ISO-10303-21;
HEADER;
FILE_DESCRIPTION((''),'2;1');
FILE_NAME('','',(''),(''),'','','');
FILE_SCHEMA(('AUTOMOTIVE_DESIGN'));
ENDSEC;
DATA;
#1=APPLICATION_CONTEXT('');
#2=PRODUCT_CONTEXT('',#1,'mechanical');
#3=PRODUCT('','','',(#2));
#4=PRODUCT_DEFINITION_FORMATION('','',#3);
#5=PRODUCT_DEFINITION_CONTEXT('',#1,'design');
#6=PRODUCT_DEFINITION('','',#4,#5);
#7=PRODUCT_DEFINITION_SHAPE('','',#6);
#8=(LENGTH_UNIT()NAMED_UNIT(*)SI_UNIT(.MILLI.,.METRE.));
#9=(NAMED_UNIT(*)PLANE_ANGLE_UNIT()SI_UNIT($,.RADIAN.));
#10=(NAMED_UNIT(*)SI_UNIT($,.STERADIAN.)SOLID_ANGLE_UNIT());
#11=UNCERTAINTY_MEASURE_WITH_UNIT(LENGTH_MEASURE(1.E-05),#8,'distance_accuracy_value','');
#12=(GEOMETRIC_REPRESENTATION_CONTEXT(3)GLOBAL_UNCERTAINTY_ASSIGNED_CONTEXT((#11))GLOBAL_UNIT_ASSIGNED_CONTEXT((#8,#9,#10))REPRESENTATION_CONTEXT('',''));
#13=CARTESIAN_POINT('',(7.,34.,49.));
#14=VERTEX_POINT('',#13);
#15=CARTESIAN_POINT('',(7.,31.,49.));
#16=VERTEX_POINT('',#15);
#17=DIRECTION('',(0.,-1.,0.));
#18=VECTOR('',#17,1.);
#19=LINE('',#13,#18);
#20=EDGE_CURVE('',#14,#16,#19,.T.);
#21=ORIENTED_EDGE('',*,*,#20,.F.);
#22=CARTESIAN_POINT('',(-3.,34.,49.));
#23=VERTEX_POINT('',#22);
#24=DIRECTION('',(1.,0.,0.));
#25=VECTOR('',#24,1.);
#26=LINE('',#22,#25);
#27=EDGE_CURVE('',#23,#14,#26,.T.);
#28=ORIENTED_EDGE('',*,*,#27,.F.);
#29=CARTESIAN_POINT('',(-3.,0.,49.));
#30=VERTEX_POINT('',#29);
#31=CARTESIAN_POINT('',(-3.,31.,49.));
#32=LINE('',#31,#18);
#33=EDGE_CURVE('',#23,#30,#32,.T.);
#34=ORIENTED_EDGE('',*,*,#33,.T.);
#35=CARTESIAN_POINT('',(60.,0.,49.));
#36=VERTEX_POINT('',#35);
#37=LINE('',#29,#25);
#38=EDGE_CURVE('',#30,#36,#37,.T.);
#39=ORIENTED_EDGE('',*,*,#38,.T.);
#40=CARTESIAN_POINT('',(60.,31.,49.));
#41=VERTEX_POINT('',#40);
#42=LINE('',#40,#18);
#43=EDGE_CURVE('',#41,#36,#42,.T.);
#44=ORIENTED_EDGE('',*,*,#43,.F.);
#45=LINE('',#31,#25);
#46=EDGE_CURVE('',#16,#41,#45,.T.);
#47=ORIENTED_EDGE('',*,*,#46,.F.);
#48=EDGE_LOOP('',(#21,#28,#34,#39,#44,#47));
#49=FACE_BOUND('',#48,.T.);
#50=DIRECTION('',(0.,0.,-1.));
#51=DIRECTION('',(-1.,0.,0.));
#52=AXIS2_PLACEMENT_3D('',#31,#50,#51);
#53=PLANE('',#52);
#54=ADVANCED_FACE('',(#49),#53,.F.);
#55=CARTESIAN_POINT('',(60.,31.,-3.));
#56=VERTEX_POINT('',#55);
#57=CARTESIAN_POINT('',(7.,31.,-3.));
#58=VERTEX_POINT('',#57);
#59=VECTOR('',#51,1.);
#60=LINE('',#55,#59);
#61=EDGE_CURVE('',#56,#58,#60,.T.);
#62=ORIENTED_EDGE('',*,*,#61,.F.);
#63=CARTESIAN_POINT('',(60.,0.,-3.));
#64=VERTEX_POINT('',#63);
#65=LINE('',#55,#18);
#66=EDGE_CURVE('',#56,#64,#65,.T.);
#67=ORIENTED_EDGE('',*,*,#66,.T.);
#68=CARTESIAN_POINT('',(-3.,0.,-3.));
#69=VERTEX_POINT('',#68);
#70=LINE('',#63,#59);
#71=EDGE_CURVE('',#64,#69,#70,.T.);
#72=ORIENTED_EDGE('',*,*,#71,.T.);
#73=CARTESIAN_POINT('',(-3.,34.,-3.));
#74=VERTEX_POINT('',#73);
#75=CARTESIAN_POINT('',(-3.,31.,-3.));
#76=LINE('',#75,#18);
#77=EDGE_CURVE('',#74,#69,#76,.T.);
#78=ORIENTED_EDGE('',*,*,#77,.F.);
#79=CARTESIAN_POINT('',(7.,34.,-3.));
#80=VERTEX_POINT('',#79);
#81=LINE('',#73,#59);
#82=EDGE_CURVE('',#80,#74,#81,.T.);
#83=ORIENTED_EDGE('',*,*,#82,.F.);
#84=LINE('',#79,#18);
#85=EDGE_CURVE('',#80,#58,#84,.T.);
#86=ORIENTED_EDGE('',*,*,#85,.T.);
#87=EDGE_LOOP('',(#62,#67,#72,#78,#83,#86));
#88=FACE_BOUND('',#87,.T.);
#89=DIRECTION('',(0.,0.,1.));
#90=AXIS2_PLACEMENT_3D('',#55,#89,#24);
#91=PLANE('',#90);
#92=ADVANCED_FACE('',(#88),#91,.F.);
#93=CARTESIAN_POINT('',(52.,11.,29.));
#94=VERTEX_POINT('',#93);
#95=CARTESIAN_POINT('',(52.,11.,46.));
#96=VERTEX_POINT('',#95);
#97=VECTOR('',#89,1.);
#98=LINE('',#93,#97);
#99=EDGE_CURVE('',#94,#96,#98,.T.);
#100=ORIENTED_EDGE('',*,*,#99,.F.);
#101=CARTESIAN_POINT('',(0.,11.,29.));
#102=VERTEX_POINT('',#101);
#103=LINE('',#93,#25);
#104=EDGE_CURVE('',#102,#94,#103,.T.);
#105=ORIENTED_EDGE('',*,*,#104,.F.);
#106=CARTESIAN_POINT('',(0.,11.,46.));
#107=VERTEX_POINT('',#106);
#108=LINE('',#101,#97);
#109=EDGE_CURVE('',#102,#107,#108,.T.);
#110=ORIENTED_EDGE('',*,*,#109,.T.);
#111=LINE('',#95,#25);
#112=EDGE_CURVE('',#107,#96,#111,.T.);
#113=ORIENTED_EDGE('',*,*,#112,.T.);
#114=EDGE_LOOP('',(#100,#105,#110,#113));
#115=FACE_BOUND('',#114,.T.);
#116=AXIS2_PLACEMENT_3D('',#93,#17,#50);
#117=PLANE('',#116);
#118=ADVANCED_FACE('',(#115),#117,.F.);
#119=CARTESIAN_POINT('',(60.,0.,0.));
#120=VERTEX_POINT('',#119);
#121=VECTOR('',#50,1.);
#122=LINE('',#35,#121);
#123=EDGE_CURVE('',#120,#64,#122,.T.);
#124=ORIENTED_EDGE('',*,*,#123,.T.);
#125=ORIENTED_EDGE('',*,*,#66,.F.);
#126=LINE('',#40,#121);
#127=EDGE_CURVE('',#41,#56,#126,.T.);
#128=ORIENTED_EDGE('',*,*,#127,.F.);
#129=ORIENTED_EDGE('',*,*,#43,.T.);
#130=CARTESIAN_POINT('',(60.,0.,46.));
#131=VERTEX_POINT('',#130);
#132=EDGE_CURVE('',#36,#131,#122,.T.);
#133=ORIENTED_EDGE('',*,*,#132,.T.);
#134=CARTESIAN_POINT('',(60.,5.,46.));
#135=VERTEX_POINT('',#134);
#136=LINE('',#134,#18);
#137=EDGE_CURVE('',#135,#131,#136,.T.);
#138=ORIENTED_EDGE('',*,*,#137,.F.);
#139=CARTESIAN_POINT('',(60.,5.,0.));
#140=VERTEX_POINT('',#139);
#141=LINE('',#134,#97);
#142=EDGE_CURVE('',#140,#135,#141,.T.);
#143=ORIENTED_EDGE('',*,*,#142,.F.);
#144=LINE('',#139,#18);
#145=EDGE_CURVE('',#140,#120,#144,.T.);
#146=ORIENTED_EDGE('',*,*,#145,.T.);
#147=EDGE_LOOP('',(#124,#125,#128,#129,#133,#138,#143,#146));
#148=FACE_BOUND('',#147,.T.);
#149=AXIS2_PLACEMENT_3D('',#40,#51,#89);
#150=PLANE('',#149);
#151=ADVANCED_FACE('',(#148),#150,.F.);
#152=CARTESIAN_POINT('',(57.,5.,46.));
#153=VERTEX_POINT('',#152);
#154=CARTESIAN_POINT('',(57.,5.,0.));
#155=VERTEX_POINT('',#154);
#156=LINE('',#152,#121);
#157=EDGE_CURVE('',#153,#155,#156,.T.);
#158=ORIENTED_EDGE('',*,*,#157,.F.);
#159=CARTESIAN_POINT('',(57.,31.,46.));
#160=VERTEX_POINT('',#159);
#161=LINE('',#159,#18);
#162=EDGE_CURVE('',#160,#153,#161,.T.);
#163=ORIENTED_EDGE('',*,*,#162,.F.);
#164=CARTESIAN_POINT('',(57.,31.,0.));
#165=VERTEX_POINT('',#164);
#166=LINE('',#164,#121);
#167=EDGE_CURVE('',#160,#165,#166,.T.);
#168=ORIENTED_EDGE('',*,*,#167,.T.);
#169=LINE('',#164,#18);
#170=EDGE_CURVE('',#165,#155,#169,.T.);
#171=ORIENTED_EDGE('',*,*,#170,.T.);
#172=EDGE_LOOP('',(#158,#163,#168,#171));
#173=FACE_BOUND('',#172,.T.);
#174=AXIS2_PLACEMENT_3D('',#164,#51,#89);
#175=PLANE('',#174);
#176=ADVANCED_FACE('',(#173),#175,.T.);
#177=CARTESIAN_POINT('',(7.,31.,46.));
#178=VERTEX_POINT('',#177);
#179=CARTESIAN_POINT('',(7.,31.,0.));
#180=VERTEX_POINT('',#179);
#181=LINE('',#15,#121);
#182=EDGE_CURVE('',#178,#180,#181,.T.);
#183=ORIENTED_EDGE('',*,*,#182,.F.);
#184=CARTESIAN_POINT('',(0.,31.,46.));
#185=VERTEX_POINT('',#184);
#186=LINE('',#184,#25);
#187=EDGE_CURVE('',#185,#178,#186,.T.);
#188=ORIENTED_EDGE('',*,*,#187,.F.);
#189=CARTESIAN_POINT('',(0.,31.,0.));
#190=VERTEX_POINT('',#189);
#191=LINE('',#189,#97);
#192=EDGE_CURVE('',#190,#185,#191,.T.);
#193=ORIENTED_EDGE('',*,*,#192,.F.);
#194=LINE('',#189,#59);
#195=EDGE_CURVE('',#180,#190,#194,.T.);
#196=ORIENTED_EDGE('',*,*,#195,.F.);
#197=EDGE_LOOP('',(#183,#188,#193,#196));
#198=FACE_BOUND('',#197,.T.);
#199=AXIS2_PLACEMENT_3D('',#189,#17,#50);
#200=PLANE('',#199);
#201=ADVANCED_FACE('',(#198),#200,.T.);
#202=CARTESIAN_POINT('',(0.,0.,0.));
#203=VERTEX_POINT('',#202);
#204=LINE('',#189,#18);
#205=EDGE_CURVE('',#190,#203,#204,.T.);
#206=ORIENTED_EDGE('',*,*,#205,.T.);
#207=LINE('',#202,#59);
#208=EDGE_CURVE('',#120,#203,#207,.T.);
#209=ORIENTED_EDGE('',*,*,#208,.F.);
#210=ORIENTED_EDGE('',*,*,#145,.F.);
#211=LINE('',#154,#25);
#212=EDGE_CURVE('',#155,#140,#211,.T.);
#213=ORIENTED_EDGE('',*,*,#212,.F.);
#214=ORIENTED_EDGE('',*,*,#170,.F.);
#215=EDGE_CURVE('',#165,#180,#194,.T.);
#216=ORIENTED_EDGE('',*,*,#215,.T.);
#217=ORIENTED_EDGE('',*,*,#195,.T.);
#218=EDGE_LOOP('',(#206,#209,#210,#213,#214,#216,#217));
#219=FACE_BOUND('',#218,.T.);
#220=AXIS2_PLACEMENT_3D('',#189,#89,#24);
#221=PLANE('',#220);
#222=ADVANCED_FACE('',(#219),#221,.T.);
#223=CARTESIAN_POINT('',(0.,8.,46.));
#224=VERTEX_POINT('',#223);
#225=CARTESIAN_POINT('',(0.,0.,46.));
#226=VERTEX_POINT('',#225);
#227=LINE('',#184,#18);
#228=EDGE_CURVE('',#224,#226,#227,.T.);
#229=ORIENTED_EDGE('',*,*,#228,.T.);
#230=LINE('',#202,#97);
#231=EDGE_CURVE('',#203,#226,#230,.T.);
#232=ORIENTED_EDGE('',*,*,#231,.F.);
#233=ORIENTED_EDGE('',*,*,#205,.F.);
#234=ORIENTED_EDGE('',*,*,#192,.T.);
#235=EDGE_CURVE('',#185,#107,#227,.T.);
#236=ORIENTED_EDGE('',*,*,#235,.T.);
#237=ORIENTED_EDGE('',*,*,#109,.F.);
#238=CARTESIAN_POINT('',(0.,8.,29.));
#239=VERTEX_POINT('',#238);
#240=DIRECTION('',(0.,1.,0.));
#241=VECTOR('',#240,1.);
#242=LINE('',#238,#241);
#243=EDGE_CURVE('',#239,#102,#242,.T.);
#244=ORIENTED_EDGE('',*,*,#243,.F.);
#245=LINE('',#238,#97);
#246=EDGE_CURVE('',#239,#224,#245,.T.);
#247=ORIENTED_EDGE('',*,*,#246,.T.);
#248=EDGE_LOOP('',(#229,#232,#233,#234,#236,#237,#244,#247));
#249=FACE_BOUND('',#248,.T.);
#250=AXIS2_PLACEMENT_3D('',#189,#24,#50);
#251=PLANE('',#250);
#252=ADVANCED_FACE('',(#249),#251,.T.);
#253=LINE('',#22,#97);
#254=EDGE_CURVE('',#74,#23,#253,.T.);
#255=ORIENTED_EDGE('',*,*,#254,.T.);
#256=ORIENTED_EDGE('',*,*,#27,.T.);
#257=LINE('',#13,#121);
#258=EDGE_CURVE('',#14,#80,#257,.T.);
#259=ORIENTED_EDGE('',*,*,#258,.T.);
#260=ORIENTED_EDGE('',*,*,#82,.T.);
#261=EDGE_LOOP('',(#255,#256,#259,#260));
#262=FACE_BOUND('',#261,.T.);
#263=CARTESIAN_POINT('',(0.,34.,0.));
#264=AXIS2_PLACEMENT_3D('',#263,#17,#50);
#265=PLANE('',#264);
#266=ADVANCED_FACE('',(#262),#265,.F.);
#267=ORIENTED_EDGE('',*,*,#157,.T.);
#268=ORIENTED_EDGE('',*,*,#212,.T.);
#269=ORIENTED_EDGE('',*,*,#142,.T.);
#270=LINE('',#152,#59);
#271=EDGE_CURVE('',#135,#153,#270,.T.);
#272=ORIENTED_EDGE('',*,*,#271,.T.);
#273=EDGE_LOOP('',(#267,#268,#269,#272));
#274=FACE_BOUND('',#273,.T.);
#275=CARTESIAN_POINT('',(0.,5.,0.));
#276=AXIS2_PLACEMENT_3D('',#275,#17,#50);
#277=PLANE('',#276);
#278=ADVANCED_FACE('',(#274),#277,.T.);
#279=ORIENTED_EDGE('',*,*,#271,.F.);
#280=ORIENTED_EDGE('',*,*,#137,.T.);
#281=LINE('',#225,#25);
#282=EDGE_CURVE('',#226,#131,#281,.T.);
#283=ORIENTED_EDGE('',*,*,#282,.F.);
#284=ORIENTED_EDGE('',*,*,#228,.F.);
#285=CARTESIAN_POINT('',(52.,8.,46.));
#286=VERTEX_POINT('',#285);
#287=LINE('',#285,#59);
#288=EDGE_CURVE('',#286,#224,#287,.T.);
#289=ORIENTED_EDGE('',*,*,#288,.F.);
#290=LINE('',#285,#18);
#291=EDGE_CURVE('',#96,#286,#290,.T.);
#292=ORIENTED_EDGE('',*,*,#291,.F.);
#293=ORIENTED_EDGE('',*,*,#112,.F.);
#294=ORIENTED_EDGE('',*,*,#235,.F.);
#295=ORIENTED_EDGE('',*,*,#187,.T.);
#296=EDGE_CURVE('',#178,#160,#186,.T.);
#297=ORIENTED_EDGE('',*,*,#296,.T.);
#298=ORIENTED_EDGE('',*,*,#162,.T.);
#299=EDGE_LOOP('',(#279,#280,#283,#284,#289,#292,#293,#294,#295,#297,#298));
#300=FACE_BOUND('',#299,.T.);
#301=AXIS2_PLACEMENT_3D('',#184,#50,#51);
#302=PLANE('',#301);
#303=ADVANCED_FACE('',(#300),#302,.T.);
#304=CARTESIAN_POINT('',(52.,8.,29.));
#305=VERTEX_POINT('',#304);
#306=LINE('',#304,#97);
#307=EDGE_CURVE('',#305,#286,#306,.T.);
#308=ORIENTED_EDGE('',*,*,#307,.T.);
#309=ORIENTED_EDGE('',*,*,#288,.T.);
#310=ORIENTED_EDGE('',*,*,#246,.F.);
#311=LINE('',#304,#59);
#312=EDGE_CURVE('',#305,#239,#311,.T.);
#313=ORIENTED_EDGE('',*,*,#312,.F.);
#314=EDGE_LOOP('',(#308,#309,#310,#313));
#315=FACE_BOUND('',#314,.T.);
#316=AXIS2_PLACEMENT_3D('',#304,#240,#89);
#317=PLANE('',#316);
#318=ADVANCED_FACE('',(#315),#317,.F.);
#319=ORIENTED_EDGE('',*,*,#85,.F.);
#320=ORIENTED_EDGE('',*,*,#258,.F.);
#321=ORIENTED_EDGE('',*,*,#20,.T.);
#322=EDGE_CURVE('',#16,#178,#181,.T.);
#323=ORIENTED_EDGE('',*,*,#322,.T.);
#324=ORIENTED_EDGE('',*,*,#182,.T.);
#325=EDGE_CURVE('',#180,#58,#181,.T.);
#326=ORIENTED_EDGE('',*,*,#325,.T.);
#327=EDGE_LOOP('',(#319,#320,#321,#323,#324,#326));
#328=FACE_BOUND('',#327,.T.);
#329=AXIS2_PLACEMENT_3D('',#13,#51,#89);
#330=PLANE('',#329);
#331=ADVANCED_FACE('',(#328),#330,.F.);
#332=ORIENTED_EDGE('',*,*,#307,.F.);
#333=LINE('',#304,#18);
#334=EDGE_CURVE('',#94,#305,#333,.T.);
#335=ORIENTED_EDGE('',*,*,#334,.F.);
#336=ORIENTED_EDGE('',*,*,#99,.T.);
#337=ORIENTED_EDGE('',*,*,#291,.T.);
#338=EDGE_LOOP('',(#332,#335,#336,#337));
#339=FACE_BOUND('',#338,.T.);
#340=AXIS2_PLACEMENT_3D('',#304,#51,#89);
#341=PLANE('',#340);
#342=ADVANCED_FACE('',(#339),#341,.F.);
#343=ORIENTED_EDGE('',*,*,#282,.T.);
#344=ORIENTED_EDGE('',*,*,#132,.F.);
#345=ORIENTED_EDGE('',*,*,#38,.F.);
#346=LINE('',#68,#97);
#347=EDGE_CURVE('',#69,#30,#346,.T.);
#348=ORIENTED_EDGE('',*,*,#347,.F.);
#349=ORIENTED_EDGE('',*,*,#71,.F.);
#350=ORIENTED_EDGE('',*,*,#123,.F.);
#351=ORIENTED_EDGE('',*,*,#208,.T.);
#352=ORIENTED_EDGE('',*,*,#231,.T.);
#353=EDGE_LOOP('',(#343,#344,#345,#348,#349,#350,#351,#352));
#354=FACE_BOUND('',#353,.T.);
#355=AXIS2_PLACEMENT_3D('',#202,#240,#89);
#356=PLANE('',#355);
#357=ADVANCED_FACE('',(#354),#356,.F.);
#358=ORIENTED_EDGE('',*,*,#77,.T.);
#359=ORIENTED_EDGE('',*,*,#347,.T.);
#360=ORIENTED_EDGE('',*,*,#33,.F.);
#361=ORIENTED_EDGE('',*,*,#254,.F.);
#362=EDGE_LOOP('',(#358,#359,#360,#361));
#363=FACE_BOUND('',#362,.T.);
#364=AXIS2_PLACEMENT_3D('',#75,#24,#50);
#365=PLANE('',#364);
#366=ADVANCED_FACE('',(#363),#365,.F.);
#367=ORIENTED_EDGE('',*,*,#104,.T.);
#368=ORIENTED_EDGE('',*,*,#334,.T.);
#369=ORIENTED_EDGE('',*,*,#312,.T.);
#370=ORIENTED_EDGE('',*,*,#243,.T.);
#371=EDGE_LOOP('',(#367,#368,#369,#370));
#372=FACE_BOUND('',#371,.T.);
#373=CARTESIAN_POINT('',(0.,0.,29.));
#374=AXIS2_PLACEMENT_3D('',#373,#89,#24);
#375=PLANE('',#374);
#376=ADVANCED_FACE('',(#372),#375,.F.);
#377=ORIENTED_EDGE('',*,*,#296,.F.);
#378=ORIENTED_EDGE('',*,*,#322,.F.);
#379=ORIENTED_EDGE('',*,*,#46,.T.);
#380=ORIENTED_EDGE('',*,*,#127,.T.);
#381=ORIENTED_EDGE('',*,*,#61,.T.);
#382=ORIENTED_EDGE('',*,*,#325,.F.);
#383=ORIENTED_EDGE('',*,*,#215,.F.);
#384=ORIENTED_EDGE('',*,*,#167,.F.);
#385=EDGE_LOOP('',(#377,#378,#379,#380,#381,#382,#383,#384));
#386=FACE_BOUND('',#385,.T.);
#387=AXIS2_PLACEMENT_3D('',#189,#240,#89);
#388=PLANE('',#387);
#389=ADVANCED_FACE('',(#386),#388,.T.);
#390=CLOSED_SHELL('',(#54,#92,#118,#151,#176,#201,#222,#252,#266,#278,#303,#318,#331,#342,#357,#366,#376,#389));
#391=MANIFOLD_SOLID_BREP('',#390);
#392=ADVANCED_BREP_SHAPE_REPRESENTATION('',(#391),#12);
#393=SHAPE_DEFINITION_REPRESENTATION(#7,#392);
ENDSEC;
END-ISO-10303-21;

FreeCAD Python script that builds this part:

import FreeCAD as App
import Part
import Sketcher
from FreeCAD import Vector
Q = App.Units.Quantity

doc = App.newDocument("Part")
body = doc.addObject("PartDesign::Body", "Body")

# Sketch on XZ plane
sketch1 = body.newObject("Sketcher::SketchObject", "Sketch")
sketch1.AttachmentSupport = (doc.getObject("XZ_Plane"), [""])
sketch1.MapMode = "FlatFace"
sketch1.addGeometry([
    Part.LineSegment(Vector(-3, -3, 0), Vector(-3, 49, 0)),
    Part.LineSegment(Vector(-3, 49, 0), Vector(60, 49, 0)),
    Part.LineSegment(Vector(60, 49, 0), Vector(60, -3, 0)),
    Part.LineSegment(Vector(60, -3, 0), Vector(-3, -3, 0)),
], False)
sketch1.addConstraint([
    Sketcher.Constraint("Coincident", 0, 2, 1, 1),
    Sketcher.Constraint("Coincident", 1, 2, 2, 1),
    Sketcher.Constraint("Coincident", 2, 2, 3, 1),
    Sketcher.Constraint("Coincident", 3, 2, 0, 1),
    Sketcher.Constraint("Vertical", 0),
    Sketcher.Constraint("Horizontal", 1),
    Sketcher.Constraint("Vertical", 2),
    Sketcher.Constraint("Horizontal", 3),
    Sketcher.Constraint("DistanceX", 1, 1, 1, 2, Q("63 mm")),
    Sketcher.Constraint("DistanceY", 0, 1, 0, 2, Q("52 mm")),
    Sketcher.Constraint("DistanceX", 0, 2, -1, 1, Q("3 mm")),
    Sketcher.Constraint("DistanceY", -1, 1, 0, 2, Q("49 mm")),
])
pad1 = body.newObject("PartDesign::Pad", "Pad")
pad1.Profile = sketch1
pad1.Length = 31
pad1.Reversed = True

# Sketch on XZ plane
sketch2 = body.newObject("Sketcher::SketchObject", "Sketch001")
sketch2.AttachmentSupport = (doc.getObject("XZ_Plane"), [""])
sketch2.MapMode = "FlatFace"
sketch2.addGeometry([
    Part.LineSegment(Vector(0, 0, 0), Vector(0, 46, 0)),
    Part.LineSegment(Vector(0, 46, 0), Vector(57, 46, 0)),
    Part.LineSegment(Vector(57, 46, 0), Vector(57, 0, 0)),
    Part.LineSegment(Vector(57, 0, 0), Vector(0, 0, 0)),
], False)
sketch2.addConstraint([
    Sketcher.Constraint("Coincident", 0, 2, 1, 1),
    Sketcher.Constraint("Coincident", 1, 2, 2, 1),
    Sketcher.Constraint("Coincident", 2, 2, 3, 1),
    Sketcher.Constraint("Coincident", 3, 2, 0, 1),
    Sketcher.Constraint("Vertical", 0),
    Sketcher.Constraint("Horizontal", 1),
    Sketcher.Constraint("Vertical", 2),
    Sketcher.Constraint("Horizontal", 3),
    Sketcher.Constraint("Coincident", 3, 2, -1, 1),
    Sketcher.Constraint("DistanceX", 1, 1, 1, 2, Q("57 mm")),
    Sketcher.Constraint("DistanceY", 0, 1, 0, 2, Q("46 mm")),
])
pocket1 = body.newObject("PartDesign::Pocket", "Pocket")
pocket1.Profile = sketch2
pocket1.Length = 31

# Sketch on XZ plane
sketch3 = body.newObject("Sketcher::SketchObject", "Sketch002")
sketch3.AttachmentSupport = (doc.getObject("XZ_Plane"), [""])
sketch3.MapMode = "FlatFace"
sketch3.addGeometry([
    Part.LineSegment(Vector(57, 46, 0), Vector(57, 0, 0)),
    Part.LineSegment(Vector(57, 0, 0), Vector(60, 0, 0)),
    Part.LineSegment(Vector(60, 0, 0), Vector(60, 46, 0)),
    Part.LineSegment(Vector(60, 46, 0), Vector(57, 46, 0)),
], False)
sketch3.addConstraint([
    Sketcher.Constraint("Coincident", 0, 2, 1, 1),
    Sketcher.Constraint("Coincident", 1, 2, 2, 1),
    Sketcher.Constraint("Coincident", 2, 2, 3, 1),
    Sketcher.Constraint("Coincident", 3, 2, 0, 1),
    Sketcher.Constraint("Vertical", 0),
    Sketcher.Constraint("Horizontal", 1),
    Sketcher.Constraint("Vertical", 2),
    Sketcher.Constraint("Horizontal", 3),
    Sketcher.Constraint("PointOnObject", 0, 2, -1),
    Sketcher.Constraint("DistanceX", 1, 1, 1, 2, Q("3 mm")),
    Sketcher.Constraint("DistanceY", 0, 2, 0, 1, Q("46 mm")),
    Sketcher.Constraint("DistanceX", -1, 1, 0, 2, Q("57 mm")),
])
pocket2 = body.newObject("PartDesign::Pocket", "Pocket001")
pocket2.Profile = sketch3
pocket2.Length = 5

# Sketch on XY plane
sketch4 = body.newObject("Sketcher::SketchObject", "Sketch003")
sketch4.AttachmentSupport = (doc.getObject("XY_Plane"), [""])
sketch4.MapMode = "FlatFace"
sketch4.AttachmentOffset = App.Placement(Vector(0, 0, 46), App.Rotation())
sketch4.addGeometry([
    Part.LineSegment(Vector(52, 11, 0), Vector(52, 8, 0)),
    Part.LineSegment(Vector(52, 8, 0), Vector(0, 8, 0)),
    Part.LineSegment(Vector(0, 8, 0), Vector(0, 11, 0)),
    Part.LineSegment(Vector(0, 11, 0), Vector(52, 11, 0)),
], False)
sketch4.addConstraint([
    Sketcher.Constraint("Coincident", 0, 2, 1, 1),
    Sketcher.Constraint("Coincident", 1, 2, 2, 1),
    Sketcher.Constraint("Coincident", 2, 2, 3, 1),
    Sketcher.Constraint("Coincident", 3, 2, 0, 1),
    Sketcher.Constraint("Vertical", 0),
    Sketcher.Constraint("Horizontal", 1),
    Sketcher.Constraint("Vertical", 2),
    Sketcher.Constraint("Horizontal", 3),
    Sketcher.Constraint("PointOnObject", 1, 2, -2),
    Sketcher.Constraint("DistanceX", 1, 2, 1, 1, Q("52 mm")),
    Sketcher.Constraint("DistanceY", 0, 2, 0, 1, Q("3 mm")),
    Sketcher.Constraint("DistanceY", -1, 1, 0, 2, Q("8 mm")),
])
pad2 = body.newObject("PartDesign::Pad", "Pad001")
pad2.Profile = sketch4
pad2.Length = 17
pad2.Reversed = True

# Sketch on XZ plane
sketch5 = body.newObject("Sketcher::SketchObject", "Sketch004")
sketch5.AttachmentSupport = (doc.getObject("XZ_Plane"), [""])
sketch5.MapMode = "FlatFace"
sketch5.AttachmentOffset = App.Placement(Vector(0, 0, -31), App.Rotation())
sketch5.addGeometry([
    Part.LineSegment(Vector(-3, -3, 0), Vector(-3, 49, 0)),
    Part.LineSegment(Vector(-3, 49, 0), Vector(7, 49, 0)),
    Part.LineSegment(Vector(7, 49, 0), Vector(7, -3, 0)),
    Part.LineSegment(Vector(7, -3, 0), Vector(-3, -3, 0)),
], False)
sketch5.addConstraint([
    Sketcher.Constraint("Coincident", 0, 2, 1, 1),
    Sketcher.Constraint("Coincident", 1, 2, 2, 1),
    Sketcher.Constraint("Coincident", 2, 2, 3, 1),
    Sketcher.Constraint("Coincident", 3, 2, 0, 1),
    Sketcher.Constraint("Vertical", 0),
    Sketcher.Constraint("Horizontal", 1),
    Sketcher.Constraint("Vertical", 2),
    Sketcher.Constraint("Horizontal", 3),
    Sketcher.Constraint("DistanceX", 1, 1, 1, 2, Q("10 mm")),
    Sketcher.Constraint("DistanceY", 0, 1, 0, 2, Q("52 mm")),
    Sketcher.Constraint("DistanceX", 0, 2, -1, 1, Q("3 mm")),
    Sketcher.Constraint("DistanceY", -1, 1, 0, 2, Q("49 mm")),
])
pad3 = body.newObject("PartDesign::Pad", "Pad002")
pad3.Profile = sketch5
pad3.Length = 3
pad3.Reversed = True

doc.recompute()
